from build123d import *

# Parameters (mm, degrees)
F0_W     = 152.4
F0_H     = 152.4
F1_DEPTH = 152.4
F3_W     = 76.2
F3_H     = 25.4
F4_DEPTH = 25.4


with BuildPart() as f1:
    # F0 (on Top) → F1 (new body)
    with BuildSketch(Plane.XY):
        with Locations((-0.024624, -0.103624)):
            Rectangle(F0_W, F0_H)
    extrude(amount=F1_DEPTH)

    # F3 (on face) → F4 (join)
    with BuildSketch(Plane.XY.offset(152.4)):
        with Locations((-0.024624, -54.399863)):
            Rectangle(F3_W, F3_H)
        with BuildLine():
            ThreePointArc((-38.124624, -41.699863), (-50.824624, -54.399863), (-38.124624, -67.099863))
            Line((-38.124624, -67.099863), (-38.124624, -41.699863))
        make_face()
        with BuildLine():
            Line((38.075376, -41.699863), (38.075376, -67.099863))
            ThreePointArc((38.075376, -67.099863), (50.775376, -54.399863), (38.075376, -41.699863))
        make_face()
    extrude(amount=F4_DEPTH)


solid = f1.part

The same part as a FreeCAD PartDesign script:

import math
import FreeCAD as App
import Part
import Sketcher

V = App.Vector
Q = App.Units.Quantity


def add_polygon(sketch, points):
    """Adds a closed chain of lines whose ends are joined by coincident constraints."""
    first, n = sketch.GeometryCount, len(points)
    for a, b in zip(points, points[1:] + points[:1]):
        sketch.addGeometry(Part.LineSegment(App.Vector(*a, 0), App.Vector(*b, 0)), False)
    for i in range(n):
        sketch.addConstraint(Sketcher.Constraint("Coincident", first + i, 2, first + (i + 1) % n, 1))

doc = App.newDocument("Part")
body = doc.addObject("PartDesign::Body", "Body")

# Sketch on XY plane
sketch1 = body.newObject("Sketcher::SketchObject", "Sketch")
sketch1.AttachmentSupport = (doc.getObject("XY_Plane"), [""])
sketch1.MapMode = "FlatFace"
add_polygon(sketch1, [(-76, 76), (-76, -76), (76, -76), (76, 76)])  # lines 0-3
sketch1.addConstraint(Sketcher.Constraint("Vertical", 0))
sketch1.addConstraint(Sketcher.Constraint("Horizontal", 1))
sketch1.addConstraint(Sketcher.Constraint("Vertical", 2))
sketch1.addConstraint(Sketcher.Constraint("Horizontal", 3))
sketch1.addConstraint(Sketcher.Constraint("Equal", 3, 0))
sketch1.addConstraint(Sketcher.Constraint("DistanceX", 1, 1, 1, 2, Q("6 in")))
sketch1.addConstraint(Sketcher.Constraint("DistanceX", 0, 2, -1, 1, Q("76.224624 mm")))
sketch1.addConstraint(Sketcher.Constraint("DistanceY", 0, 2, -1, 1, Q("76.303624 mm")))
pad1 = body.newObject("PartDesign::Pad", "Pad")
pad1.Profile = sketch1
pad1.Length = Q("6 in")

# Sketch on XY plane
sketch2 = body.newObject("Sketcher::SketchObject", "Sketch001")
sketch2.AttachmentSupport = (doc.getObject("XY_Plane"), [""])
sketch2.MapMode = "FlatFace"
sketch2.AttachmentOffset = App.Placement(V(0, 0, 6 * 25.4), App.Rotation())
sketch2.addGeometry(Part.LineSegment(V(-38, -67, 0), V(38, -67, 0)), False)
sketch2.addGeometry(Part.ArcOfCircle(Part.Circle(V(38, -54, 0), V(0, 0, 1), 13), math.radians(-90), math.radians(90)), False)
sketch2.addGeometry(Part.LineSegment(V(38, -42, 0), V(-38, -42, 0)), False)
sketch2.addGeometry(Part.ArcOfCircle(Part.Circle(V(-38, -54, 0), V(0, 0, 1), 13), math.radians(90), math.radians(270)), False)
sketch2.addConstraint(Sketcher.Constraint("Tangent", 0, 2, 1, 1))
sketch2.addConstraint(Sketcher.Constraint("Tangent", 1, 2, 2, 1))
sketch2.addConstraint(Sketcher.Constraint("Tangent", 2, 2, 3, 1))
sketch2.addConstraint(Sketcher.Constraint("Tangent", 3, 2, 0, 1))
sketch2.addConstraint(Sketcher.Constraint("Horizontal", 0))
sketch2.addConstraint(Sketcher.Constraint("Horizontal", 2))
sketch2.addConstraint(Sketcher.Constraint("Radius", 1, Q("0.5 in")))
sketch2.addConstraint(Sketcher.Constraint("DistanceX", 0, 1, 0, 2, Q("3 in")))
sketch2.addConstraint(Sketcher.Constraint("DistanceX", -1, 1, 1, 3, Q("38.075376 mm")))
sketch2.addConstraint(Sketcher.Constraint("DistanceY", 1, 3, -1, 1, Q("54.399863 mm")))
pad2 = body.newObject("PartDesign::Pad", "Pad001")
pad2.Profile = sketch2
pad2.Length = Q("1 in")

doc.recompute()
